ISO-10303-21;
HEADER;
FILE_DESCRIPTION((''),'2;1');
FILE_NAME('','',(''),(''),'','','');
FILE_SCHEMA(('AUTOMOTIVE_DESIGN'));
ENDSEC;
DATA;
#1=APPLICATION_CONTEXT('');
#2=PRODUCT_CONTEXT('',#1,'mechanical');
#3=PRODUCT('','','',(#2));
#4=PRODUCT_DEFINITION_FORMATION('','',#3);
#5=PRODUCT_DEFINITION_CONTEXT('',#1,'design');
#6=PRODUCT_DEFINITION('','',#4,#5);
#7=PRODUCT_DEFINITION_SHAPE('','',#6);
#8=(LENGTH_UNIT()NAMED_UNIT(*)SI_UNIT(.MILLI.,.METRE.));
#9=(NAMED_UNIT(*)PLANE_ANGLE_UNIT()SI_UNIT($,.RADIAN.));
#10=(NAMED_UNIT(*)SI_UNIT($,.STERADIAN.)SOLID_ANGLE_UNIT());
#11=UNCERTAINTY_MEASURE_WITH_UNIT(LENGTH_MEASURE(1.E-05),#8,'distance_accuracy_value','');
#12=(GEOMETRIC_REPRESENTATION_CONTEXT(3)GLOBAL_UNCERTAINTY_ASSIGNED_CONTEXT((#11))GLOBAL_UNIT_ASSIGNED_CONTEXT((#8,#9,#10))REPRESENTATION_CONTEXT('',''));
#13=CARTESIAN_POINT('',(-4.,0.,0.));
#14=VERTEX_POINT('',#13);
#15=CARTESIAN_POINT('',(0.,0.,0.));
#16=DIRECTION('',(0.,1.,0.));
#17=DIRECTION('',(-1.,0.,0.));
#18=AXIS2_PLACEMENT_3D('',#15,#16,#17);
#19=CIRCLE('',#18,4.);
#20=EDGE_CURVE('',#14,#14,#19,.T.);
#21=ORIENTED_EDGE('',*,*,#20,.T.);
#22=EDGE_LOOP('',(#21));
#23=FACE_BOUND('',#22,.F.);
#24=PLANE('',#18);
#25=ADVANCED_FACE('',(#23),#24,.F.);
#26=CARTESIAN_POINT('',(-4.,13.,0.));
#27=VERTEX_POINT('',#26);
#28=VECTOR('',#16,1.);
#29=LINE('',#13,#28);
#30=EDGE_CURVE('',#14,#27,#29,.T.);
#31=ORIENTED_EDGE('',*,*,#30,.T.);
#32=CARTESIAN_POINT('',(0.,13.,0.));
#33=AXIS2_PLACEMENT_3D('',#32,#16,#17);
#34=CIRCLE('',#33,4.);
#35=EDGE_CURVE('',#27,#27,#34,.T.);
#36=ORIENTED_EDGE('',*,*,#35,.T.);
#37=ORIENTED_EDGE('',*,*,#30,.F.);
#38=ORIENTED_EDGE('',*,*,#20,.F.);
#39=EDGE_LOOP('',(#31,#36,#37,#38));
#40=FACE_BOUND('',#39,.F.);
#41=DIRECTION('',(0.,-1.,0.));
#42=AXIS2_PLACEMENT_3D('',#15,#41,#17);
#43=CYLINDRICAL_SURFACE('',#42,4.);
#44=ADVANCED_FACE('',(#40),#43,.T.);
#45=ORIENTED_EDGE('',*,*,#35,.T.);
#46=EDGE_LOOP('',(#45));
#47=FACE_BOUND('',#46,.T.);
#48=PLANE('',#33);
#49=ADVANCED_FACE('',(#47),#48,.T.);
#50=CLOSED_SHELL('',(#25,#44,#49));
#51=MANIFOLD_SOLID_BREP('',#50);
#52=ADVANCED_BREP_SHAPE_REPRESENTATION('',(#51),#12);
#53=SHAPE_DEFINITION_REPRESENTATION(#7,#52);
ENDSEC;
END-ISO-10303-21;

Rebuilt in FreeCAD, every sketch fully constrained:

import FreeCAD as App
import Part
import Sketcher

V = App.Vector
Q = App.Units.Quantity

doc = App.newDocument("Part")
body = doc.addObject("PartDesign::Body", "Body")

sketch1 = doc.addObject("Sketcher::SketchObject", "Sketch")
body.addObject(sketch1)
sketch1.AttachmentSupport = (doc.XZ_Plane, [""])
sketch1.MapMode = "FlatFace"
sketch1.addGeometry(Part.Circle(V(0, 0, 0), V(0, 0, 1), 4), False)
sketch1.addConstraint(Sketcher.Constraint("Coincident", 0, 3, -1, 1))
sketch1.addConstraint(Sketcher.Constraint("Diameter", 0, Q("8 mm")))
pad1 = doc.addObject("PartDesign::Pad", "Pad")
body.addObject(pad1)
pad1.Profile = sketch1
pad1.Length = 13
pad1.Reversed = True

doc.recompute()
